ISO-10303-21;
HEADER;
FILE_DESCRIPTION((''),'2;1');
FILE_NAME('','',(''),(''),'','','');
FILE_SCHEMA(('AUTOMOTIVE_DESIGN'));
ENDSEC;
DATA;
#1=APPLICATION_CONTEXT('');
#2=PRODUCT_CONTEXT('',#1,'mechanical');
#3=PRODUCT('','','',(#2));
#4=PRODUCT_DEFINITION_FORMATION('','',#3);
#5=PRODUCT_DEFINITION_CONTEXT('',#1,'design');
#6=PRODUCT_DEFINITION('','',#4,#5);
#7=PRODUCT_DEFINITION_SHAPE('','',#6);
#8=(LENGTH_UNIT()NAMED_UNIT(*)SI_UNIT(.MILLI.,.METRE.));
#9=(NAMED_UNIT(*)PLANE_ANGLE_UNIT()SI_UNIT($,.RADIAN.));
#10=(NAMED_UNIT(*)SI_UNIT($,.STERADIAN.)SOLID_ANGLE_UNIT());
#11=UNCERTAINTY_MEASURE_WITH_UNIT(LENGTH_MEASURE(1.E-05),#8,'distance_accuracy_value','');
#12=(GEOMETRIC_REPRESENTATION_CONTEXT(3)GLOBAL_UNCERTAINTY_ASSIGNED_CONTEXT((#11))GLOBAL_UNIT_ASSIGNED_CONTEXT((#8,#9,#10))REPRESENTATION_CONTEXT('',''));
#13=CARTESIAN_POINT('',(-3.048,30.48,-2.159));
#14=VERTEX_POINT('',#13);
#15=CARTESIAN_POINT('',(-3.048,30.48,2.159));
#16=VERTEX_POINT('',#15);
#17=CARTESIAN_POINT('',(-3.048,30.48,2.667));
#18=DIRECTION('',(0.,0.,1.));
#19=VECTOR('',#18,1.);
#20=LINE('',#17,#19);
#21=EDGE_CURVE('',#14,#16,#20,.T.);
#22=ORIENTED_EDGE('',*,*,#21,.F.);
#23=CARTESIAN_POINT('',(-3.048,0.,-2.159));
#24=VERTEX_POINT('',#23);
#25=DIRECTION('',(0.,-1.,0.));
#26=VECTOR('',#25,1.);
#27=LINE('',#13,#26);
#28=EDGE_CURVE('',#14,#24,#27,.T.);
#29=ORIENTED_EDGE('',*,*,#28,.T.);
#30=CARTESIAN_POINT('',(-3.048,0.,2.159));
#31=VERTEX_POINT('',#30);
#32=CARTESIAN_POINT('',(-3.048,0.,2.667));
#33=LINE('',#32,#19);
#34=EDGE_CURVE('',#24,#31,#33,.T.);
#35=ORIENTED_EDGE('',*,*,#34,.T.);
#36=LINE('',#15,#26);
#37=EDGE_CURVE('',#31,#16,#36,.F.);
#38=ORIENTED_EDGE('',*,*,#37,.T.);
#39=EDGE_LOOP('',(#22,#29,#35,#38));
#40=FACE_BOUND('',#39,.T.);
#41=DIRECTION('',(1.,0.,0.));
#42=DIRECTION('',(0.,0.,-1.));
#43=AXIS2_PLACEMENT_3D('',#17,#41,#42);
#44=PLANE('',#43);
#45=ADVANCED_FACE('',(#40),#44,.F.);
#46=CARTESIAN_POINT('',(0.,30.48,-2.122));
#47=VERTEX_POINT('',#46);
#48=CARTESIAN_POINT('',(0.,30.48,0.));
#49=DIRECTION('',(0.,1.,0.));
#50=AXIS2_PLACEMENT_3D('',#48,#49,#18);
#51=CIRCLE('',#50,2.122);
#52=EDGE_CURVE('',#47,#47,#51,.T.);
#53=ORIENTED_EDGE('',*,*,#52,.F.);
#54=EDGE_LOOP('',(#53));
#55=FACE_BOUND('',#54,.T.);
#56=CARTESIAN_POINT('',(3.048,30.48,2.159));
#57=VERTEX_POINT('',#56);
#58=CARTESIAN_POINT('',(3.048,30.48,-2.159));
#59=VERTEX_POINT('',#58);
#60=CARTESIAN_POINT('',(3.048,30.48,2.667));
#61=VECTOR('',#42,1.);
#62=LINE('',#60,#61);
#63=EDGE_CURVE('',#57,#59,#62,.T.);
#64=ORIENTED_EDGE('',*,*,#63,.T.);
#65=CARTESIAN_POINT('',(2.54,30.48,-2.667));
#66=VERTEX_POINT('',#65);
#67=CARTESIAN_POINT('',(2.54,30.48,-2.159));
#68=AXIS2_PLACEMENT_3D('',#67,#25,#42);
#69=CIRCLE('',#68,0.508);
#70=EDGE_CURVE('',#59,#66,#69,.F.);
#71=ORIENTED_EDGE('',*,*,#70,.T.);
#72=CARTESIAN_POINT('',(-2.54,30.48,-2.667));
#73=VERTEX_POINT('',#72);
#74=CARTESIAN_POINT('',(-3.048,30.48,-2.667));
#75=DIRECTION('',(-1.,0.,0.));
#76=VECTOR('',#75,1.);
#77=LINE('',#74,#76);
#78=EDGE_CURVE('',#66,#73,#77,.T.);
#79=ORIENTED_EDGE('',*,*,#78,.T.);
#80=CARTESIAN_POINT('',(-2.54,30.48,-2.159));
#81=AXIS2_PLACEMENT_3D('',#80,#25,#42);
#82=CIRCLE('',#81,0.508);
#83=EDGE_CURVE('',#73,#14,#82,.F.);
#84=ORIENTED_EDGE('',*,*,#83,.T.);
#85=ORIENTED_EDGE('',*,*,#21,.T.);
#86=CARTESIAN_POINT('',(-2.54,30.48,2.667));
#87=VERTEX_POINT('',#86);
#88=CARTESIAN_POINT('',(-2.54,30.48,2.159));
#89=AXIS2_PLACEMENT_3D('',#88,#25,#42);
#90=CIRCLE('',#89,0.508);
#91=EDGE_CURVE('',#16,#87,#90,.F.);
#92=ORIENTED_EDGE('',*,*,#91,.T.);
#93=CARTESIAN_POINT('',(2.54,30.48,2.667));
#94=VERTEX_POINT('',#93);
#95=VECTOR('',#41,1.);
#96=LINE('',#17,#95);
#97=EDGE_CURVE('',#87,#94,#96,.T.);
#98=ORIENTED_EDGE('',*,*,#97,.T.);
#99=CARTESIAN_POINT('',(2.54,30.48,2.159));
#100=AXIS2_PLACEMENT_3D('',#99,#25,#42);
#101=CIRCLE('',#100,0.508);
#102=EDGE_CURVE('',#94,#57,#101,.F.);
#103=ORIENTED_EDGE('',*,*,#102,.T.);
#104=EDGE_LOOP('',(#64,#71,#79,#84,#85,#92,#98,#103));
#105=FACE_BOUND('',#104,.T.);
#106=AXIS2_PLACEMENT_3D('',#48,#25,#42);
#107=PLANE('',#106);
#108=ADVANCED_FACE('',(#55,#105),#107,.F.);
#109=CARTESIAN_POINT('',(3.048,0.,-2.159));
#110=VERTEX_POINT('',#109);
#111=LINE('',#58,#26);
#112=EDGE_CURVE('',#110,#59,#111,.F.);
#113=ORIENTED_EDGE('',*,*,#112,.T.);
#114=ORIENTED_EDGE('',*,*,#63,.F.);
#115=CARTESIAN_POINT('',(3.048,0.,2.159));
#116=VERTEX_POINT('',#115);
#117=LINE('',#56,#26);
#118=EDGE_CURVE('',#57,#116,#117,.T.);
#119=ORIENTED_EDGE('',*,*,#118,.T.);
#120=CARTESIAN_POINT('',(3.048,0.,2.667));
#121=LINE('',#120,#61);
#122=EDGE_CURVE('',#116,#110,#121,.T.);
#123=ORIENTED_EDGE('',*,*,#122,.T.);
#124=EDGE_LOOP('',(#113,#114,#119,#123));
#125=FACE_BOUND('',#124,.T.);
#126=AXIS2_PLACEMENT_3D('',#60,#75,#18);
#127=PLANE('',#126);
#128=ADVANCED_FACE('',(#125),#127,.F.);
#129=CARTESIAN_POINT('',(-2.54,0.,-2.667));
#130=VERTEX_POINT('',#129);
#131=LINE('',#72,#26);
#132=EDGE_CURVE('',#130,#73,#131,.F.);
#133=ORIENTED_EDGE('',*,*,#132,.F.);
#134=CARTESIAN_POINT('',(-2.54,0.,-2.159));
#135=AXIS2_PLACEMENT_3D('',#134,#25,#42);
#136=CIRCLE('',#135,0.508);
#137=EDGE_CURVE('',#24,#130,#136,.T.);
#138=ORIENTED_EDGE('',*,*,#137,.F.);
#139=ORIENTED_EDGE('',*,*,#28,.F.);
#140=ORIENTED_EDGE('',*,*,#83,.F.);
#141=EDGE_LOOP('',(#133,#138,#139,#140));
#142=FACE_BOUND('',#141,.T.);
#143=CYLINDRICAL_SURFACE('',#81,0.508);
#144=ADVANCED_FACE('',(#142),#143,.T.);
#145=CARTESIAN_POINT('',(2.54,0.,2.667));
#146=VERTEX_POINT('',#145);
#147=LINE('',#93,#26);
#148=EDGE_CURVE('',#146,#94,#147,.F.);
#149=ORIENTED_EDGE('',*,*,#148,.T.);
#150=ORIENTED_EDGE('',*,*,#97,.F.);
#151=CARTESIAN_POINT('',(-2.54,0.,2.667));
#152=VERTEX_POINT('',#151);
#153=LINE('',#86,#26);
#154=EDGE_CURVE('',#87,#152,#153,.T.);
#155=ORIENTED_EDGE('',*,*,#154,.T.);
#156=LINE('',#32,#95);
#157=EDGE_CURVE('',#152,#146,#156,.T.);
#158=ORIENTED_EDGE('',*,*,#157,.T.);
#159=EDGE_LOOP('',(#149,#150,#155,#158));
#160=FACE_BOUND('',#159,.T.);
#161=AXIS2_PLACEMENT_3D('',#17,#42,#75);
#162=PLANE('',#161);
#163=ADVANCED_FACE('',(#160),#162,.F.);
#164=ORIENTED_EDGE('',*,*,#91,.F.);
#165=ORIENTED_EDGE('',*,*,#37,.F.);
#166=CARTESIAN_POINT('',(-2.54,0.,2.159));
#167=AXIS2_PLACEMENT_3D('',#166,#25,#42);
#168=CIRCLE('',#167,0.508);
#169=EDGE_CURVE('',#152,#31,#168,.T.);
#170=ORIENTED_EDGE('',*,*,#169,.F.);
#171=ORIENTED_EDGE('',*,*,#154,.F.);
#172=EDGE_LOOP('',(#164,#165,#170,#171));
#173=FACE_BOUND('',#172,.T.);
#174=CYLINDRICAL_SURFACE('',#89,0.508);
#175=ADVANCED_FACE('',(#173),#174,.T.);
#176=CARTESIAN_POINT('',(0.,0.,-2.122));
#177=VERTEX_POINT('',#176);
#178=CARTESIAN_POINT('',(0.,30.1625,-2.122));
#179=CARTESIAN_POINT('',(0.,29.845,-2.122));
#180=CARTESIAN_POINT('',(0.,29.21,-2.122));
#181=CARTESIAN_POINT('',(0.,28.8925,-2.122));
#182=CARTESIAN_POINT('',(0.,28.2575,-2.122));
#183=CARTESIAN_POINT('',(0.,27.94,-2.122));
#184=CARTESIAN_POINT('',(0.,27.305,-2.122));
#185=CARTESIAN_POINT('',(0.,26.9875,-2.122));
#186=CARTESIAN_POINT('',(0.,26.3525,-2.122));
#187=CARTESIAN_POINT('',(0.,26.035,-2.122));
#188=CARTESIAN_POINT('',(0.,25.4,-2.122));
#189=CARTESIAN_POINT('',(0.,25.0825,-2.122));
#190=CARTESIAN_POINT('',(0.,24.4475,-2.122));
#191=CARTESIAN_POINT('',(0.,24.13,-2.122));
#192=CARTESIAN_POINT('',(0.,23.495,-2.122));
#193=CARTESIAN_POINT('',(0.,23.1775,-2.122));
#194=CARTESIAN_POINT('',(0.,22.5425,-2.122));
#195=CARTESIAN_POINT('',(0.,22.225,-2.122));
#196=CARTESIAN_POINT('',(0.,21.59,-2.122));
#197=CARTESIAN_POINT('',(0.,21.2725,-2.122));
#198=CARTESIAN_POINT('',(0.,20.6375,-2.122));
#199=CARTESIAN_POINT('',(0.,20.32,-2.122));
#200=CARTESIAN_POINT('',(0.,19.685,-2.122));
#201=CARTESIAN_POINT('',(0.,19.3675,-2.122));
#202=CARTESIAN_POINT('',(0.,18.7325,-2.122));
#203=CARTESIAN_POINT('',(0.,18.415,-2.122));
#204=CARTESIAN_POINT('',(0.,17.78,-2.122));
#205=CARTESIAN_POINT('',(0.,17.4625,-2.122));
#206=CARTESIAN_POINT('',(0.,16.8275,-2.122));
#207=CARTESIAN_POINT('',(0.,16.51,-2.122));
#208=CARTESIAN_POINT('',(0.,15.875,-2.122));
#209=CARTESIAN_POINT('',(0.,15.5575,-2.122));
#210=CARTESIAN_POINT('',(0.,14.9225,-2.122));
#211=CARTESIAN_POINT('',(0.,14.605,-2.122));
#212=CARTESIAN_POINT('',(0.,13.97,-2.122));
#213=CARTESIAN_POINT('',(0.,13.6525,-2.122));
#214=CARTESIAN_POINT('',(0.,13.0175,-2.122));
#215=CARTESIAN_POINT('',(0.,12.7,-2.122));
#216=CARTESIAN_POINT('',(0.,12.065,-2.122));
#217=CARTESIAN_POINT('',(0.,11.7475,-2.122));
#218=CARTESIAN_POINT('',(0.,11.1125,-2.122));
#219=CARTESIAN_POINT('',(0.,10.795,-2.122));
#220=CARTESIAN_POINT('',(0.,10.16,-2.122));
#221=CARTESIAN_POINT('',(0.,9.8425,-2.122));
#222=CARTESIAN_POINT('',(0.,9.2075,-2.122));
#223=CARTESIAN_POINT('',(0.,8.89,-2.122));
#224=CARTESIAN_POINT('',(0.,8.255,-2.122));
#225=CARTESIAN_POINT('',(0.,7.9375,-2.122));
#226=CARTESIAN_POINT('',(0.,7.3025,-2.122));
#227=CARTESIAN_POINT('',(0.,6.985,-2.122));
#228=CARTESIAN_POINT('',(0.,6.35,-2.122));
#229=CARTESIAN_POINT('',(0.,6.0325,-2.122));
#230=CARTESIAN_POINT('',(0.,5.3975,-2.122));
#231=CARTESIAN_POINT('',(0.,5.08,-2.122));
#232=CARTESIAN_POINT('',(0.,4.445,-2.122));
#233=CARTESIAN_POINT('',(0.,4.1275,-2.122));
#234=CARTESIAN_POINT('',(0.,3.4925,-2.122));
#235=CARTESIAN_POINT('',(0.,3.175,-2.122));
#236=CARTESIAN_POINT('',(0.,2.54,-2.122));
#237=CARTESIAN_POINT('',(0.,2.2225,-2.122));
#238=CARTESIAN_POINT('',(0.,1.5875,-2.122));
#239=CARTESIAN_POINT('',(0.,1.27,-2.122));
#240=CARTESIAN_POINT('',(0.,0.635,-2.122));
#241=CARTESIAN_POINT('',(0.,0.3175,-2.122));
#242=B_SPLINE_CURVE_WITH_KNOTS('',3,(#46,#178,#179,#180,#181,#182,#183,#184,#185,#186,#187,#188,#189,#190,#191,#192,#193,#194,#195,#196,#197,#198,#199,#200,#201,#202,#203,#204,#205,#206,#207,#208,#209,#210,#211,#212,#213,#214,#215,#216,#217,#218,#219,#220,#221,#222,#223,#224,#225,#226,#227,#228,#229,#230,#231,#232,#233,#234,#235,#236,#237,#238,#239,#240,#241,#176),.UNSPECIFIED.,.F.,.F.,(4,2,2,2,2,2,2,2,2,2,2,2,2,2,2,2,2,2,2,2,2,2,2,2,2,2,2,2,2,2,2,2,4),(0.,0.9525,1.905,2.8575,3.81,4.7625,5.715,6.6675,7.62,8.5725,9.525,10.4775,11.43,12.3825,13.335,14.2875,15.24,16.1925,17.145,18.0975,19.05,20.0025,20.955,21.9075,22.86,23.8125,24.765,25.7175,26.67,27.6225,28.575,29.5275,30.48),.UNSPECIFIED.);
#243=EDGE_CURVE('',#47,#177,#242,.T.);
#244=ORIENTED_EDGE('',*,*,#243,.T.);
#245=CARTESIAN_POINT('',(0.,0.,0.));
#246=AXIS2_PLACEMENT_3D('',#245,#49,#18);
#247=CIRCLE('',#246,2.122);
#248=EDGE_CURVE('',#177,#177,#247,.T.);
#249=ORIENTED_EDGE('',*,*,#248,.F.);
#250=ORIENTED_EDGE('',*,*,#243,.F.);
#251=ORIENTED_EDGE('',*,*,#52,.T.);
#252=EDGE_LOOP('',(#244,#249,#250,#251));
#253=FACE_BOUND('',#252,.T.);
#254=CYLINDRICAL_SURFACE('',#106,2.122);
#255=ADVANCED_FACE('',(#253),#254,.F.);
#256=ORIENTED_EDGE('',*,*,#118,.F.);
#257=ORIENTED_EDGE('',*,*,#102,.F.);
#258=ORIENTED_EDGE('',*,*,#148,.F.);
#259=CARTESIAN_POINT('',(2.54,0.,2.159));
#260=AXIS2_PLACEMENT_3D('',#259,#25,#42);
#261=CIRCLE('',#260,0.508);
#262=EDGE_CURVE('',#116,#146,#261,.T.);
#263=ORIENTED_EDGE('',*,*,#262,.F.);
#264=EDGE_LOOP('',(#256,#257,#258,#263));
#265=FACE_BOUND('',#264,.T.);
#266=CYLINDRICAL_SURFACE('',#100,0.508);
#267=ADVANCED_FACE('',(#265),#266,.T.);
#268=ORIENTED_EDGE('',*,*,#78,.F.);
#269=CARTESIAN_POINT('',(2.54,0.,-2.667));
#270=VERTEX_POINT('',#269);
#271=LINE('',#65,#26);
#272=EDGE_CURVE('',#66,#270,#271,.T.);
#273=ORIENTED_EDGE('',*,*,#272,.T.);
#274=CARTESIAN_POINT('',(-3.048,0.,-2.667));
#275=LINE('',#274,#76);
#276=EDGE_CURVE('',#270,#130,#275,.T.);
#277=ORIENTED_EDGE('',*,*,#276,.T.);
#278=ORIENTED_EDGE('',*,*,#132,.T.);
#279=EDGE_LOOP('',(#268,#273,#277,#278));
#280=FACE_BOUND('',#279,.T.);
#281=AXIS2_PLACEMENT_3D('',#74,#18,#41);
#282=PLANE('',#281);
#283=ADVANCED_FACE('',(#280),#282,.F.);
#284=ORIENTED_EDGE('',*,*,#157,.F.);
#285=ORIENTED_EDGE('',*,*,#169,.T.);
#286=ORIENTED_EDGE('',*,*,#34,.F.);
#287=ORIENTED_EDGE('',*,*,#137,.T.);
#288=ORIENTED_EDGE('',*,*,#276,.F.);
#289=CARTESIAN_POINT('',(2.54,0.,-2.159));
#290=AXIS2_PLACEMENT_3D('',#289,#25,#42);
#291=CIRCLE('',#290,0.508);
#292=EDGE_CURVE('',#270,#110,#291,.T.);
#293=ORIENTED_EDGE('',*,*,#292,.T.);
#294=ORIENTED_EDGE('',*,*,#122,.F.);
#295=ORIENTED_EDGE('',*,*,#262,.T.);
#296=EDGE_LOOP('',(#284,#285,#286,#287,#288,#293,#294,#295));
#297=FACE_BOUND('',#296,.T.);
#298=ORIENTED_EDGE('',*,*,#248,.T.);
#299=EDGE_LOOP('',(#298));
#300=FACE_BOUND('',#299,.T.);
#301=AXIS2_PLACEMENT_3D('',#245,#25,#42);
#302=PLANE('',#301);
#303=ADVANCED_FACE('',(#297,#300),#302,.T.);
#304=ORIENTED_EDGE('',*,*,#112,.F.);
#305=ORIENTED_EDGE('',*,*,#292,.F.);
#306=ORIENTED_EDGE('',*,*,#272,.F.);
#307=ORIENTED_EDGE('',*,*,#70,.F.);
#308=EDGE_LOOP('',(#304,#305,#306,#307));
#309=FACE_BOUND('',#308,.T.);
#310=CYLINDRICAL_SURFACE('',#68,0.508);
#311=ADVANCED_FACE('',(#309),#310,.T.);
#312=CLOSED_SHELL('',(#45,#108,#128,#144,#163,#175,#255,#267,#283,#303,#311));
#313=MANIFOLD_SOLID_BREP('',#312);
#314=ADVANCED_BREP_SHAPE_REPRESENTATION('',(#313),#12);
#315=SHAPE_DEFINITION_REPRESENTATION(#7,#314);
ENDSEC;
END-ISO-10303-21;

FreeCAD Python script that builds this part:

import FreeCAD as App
import Part
import Sketcher
Q = App.Units.Quantity


def edges_at(feature, points):
    """Names of the edges that pass closest to the given points."""
    edges = feature.Shape.Edges
    near = lambda p: min(range(len(edges)), key=lambda i: edges[i].distToShape(Part.Vertex(*p))[0])
    return sorted({f"Edge{near(p) + 1}" for p in points})

doc = App.newDocument("Part")
body = doc.addObject("PartDesign::Body", "Body")

sketch1 = body.newObject("Sketcher::SketchObject", "Sketch")
sketch1.AttachmentSupport = (doc.getObject("XZ_Plane"), [""])
sketch1.MapMode = "FlatFace"
sketch1.addGeometry(Part.LineSegment(App.Vector(-3.048, -2.667, 0), App.Vector(-3.048, 2.667, 0)), False)
sketch1.addGeometry(Part.LineSegment(App.Vector(-3.048, 2.667, 0), App.Vector(3.048, 2.667, 0)), False)
sketch1.addGeometry(Part.LineSegment(App.Vector(3.048, 2.667, 0), App.Vector(3.048, -2.667, 0)), False)
sketch1.addGeometry(Part.LineSegment(App.Vector(3.048, -2.667, 0), App.Vector(-3.048, -2.667, 0)), False)
sketch1.addGeometry(Part.Circle(App.Vector(0, 0, 0), App.Vector(0, 0, 1), 2.122), False)
sketch1.addConstraint(Sketcher.Constraint("Coincident", 0, 2, 1, 1))
sketch1.addConstraint(Sketcher.Constraint("Coincident", 1, 2, 2, 1))
sketch1.addConstraint(Sketcher.Constraint("Coincident", 2, 2, 3, 1))
sketch1.addConstraint(Sketcher.Constraint("Coincident", 3, 2, 0, 1))
sketch1.addConstraint(Sketcher.Constraint("Vertical", 0))
sketch1.addConstraint(Sketcher.Constraint("Horizontal", 1))
sketch1.addConstraint(Sketcher.Constraint("Vertical", 2))
sketch1.addConstraint(Sketcher.Constraint("Horizontal", 3))
sketch1.addConstraint(Sketcher.Constraint("Coincident", 4, 3, -1, 1))
sketch1.addConstraint(Sketcher.Constraint("Symmetric", 0, 2, 2, 2, -1, 1))
sketch1.addConstraint(Sketcher.Constraint("DistanceX", 1, 1, 1, 2, Q("0.24 in")))
sketch1.addConstraint(Sketcher.Constraint("DistanceY", 0, 1, 0, 2, Q("0.21 in")))
sketch1.addConstraint(Sketcher.Constraint("Diameter", 4, 4.244))
pad1 = body.newObject("PartDesign::Pad", "Pad")
pad1.Profile = sketch1
pad1.Length = Q("1.2 in")
pad1.Reversed = True
doc.recompute()

fillet = body.newObject("PartDesign::Fillet", "Fillet")
fillet.Base = (pad1, edges_at(pad1, [
    (3.048, 15.24, 2.667),
    (-3.048, 15.24, 2.667),
    (-3.048, 15.24, -2.667),
    (3.048, 15.24, -2.667),
]))
fillet.Radius = Q("0.02 in")

doc.recompute()
